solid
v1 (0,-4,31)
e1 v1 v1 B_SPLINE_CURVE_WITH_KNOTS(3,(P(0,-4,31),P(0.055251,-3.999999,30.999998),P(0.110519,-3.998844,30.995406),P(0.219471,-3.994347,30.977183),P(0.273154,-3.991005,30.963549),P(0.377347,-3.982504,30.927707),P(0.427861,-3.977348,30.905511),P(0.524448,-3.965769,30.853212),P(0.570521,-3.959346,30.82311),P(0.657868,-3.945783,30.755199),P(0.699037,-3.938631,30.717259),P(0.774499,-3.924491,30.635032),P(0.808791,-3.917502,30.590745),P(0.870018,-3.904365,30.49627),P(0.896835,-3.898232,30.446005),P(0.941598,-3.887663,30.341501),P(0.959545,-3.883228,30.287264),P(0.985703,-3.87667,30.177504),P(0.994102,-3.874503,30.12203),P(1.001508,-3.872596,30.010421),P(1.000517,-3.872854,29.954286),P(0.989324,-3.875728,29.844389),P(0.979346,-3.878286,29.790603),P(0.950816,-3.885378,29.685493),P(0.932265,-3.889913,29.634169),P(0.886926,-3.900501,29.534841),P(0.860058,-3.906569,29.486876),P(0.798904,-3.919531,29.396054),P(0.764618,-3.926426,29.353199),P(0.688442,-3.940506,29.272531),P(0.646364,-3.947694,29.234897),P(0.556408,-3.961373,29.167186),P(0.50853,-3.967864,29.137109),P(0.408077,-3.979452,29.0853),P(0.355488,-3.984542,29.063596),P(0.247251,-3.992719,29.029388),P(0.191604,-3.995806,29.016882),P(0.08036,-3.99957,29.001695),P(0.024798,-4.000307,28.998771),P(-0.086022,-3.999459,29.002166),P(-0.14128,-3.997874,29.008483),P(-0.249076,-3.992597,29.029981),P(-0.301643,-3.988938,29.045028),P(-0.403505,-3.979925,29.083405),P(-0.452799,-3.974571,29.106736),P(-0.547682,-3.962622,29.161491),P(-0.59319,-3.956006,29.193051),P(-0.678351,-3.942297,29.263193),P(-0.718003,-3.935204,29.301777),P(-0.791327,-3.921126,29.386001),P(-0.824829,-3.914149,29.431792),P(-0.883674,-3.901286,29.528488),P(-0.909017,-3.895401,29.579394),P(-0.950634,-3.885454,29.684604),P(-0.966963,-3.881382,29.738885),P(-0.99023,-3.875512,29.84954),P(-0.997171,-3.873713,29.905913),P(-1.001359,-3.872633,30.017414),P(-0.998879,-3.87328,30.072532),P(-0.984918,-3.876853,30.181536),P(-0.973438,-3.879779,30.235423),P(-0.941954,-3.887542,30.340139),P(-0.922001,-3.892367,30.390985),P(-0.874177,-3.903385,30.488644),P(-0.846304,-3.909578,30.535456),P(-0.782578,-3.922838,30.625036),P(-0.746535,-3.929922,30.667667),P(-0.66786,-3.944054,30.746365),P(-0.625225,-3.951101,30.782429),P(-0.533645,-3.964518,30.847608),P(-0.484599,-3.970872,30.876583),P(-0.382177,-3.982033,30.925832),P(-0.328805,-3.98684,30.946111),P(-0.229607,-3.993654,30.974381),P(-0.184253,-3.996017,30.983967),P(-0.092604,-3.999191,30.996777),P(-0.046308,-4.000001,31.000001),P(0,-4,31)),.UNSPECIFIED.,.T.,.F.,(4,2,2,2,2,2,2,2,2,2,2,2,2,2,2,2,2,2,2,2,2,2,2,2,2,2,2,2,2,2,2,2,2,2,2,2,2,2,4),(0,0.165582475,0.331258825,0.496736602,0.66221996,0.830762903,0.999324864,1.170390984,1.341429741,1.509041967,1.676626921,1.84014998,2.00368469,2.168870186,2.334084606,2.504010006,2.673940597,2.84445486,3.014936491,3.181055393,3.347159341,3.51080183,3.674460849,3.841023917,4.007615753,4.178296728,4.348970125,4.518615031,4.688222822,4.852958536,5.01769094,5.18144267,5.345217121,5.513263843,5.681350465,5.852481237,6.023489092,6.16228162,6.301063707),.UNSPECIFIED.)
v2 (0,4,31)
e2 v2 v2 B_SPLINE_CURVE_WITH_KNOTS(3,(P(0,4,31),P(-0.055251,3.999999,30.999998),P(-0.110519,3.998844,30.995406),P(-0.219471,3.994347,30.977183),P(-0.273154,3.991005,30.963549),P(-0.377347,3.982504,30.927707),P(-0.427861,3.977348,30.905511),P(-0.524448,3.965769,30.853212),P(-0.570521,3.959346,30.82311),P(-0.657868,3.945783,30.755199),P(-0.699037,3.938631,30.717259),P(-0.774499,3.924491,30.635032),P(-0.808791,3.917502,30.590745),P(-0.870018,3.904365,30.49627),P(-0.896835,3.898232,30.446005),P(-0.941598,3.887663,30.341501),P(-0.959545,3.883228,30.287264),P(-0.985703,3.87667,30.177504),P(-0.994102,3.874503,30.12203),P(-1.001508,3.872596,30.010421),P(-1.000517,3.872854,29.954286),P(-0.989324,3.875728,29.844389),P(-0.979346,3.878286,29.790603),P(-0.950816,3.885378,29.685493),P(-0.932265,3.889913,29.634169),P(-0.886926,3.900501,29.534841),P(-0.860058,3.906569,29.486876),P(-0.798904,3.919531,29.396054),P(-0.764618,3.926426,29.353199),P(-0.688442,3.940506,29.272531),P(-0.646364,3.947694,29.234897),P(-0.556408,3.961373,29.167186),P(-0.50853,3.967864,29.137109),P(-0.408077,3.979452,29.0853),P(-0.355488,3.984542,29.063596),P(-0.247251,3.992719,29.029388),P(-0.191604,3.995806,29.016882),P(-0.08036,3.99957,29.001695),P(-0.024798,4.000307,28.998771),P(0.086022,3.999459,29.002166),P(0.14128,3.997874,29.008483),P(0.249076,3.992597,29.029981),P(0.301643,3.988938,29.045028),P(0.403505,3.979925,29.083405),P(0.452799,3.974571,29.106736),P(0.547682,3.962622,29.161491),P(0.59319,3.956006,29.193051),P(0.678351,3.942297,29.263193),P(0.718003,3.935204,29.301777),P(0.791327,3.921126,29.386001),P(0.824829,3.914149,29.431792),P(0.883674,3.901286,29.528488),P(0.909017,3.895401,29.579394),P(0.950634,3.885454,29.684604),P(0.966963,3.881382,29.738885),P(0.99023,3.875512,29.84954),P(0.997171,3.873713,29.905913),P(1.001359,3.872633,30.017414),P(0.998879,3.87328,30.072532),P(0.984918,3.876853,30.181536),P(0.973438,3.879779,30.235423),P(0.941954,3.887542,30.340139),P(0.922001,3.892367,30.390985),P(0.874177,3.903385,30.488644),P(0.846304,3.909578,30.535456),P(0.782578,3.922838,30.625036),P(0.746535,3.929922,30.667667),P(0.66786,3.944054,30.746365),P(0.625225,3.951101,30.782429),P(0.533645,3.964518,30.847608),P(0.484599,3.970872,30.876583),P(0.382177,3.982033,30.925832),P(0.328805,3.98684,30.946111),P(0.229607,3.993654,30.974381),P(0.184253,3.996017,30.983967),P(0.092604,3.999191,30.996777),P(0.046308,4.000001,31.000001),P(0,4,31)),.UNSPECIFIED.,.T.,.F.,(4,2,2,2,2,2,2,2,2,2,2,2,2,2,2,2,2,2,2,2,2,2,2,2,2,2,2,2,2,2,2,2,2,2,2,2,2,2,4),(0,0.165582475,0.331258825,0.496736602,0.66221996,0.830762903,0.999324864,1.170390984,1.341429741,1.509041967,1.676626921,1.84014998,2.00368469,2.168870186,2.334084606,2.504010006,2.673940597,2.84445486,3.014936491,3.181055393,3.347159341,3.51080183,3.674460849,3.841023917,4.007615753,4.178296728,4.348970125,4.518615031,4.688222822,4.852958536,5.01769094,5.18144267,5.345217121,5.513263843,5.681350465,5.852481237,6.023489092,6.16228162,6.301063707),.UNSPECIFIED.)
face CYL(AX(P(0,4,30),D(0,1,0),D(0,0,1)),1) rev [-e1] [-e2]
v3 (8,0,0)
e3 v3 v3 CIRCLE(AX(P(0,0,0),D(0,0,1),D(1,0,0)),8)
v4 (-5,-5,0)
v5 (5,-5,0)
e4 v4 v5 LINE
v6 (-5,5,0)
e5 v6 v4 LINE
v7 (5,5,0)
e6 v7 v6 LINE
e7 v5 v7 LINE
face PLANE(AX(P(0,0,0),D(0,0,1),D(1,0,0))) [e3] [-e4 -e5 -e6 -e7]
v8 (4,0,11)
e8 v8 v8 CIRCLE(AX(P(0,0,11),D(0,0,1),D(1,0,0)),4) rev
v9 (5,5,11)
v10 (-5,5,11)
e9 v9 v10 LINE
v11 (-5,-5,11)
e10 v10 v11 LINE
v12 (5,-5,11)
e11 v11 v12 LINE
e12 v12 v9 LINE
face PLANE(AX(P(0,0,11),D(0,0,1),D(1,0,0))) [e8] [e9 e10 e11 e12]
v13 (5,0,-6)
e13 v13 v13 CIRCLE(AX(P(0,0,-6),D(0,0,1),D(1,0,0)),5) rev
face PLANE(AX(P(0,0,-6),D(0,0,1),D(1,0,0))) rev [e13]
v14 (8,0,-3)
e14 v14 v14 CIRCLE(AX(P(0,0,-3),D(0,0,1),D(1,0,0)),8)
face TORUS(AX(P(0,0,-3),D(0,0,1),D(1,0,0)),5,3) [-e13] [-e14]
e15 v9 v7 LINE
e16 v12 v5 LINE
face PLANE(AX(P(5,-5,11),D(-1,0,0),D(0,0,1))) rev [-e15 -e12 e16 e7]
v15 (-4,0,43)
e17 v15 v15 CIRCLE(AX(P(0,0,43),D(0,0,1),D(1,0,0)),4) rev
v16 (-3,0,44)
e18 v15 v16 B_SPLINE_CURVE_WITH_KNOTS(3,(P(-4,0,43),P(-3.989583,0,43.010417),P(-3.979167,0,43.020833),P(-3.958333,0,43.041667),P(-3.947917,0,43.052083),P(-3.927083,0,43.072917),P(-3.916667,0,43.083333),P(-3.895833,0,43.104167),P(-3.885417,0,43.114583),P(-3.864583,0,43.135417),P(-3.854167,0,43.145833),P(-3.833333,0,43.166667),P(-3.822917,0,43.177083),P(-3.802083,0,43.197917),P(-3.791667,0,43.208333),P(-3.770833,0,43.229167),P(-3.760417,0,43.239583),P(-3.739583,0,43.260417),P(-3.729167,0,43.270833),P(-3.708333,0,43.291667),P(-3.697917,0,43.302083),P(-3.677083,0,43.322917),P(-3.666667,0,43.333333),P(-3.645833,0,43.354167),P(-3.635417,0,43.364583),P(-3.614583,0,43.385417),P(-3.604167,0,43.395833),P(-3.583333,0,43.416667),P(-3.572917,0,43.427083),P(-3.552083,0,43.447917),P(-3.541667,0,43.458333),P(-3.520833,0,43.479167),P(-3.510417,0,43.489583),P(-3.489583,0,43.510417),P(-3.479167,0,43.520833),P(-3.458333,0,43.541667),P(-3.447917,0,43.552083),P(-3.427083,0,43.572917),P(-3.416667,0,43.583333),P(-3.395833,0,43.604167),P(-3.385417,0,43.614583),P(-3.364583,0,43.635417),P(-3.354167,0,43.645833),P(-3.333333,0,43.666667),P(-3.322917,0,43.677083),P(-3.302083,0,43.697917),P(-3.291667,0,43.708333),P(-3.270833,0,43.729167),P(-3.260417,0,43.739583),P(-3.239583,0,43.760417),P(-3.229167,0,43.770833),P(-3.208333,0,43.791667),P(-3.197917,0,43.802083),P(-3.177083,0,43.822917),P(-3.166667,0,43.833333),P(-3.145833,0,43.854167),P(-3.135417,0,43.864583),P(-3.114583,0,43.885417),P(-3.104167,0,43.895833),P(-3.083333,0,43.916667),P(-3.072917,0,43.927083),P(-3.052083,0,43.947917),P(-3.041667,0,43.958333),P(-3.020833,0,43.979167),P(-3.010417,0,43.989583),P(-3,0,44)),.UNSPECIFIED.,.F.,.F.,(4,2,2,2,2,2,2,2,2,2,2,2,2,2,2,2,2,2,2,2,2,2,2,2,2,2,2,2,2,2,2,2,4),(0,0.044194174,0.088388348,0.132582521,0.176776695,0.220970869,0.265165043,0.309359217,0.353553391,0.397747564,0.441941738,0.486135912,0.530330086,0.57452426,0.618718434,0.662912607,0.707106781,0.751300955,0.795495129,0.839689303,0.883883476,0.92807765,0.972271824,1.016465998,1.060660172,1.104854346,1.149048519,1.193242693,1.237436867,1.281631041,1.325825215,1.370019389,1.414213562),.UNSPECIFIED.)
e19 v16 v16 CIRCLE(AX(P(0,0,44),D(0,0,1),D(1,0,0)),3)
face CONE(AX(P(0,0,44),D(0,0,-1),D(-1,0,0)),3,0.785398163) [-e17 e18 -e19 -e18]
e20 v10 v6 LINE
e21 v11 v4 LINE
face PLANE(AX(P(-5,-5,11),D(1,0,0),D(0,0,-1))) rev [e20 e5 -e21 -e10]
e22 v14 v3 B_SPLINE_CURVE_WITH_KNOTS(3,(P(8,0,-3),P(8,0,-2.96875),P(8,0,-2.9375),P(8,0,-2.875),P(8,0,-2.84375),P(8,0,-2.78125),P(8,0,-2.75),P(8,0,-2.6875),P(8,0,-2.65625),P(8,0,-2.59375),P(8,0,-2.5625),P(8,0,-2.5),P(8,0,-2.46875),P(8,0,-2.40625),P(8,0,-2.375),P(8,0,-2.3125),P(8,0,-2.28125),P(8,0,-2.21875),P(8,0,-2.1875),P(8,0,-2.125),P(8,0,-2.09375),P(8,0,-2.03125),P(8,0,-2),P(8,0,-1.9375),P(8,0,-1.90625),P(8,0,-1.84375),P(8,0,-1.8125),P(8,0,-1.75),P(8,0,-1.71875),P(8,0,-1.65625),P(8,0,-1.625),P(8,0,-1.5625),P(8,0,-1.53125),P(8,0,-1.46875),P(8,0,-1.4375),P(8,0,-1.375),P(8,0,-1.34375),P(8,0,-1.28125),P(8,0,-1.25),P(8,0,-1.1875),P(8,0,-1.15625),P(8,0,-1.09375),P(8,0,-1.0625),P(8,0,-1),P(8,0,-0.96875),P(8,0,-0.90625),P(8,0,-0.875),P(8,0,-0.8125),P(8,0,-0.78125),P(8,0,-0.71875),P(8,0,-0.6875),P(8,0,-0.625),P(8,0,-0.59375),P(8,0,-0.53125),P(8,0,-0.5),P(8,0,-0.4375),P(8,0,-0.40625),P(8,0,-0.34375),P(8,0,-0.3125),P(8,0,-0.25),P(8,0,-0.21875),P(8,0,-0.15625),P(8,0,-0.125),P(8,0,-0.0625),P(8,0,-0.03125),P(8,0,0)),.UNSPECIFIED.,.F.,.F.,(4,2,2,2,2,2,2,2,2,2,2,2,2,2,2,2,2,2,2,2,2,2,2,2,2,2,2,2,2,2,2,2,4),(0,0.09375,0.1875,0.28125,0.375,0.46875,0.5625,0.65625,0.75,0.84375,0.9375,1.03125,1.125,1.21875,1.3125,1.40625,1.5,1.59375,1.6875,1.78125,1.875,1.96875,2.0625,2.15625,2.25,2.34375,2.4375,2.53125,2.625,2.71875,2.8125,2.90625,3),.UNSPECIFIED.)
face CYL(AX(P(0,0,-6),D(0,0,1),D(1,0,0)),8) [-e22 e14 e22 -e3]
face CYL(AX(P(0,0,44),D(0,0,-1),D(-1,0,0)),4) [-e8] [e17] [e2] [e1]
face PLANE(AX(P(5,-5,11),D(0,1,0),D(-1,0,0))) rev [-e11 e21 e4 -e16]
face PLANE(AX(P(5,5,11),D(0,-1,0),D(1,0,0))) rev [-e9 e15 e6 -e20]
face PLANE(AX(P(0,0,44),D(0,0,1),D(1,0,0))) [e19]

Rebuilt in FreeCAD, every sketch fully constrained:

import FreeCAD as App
import Part
import Sketcher
from FreeCAD import Vector
Q = App.Units.Quantity


def edges_at(feature, points):
    """Names of the edges that pass closest to the given points."""
    edges = feature.Shape.Edges
    near = lambda p: min(range(len(edges)), key=lambda i: edges[i].distToShape(Part.Vertex(*p))[0])
    return sorted({f"Edge{near(p) + 1}" for p in points})


def add_polygon(sketch, points):
    """Adds a closed chain of lines whose ends are joined by coincident constraints."""
    first, n = sketch.GeometryCount, len(points)
    for a, b in zip(points, points[1:] + points[:1]):
        sketch.addGeometry(Part.LineSegment(App.Vector(*a, 0), App.Vector(*b, 0)), False)
    for i in range(n):
        sketch.addConstraint(Sketcher.Constraint("Coincident", first + i, 2, first + (i + 1) % n, 1))

doc = App.newDocument("Part")
body = doc.addObject("PartDesign::Body", "Body")

# Sketch on XY plane
sketch1 = body.newObject("Sketcher::SketchObject", "Sketch")
sketch1.AttachmentSupport = (doc.getObject("XY_Plane"), [""])
sketch1.MapMode = "FlatFace"
sketch1.addGeometry(Part.Circle(Vector(0, 0, 0), Vector(0, 0, 1), 8), False)
sketch1.addConstraint([
    Sketcher.Constraint("Coincident", 0, 3, -1, 1),
    Sketcher.Constraint("Diameter", 0, Q("16 mm")),
])
pad1 = body.newObject("PartDesign::Pad", "Pad")
pad1.Profile = sketch1
pad1.Length = 6
pad1.Reversed = True

# Sketch on XY plane
sketch2 = body.newObject("Sketcher::SketchObject", "Sketch001")
sketch2.AttachmentSupport = (doc.getObject("XY_Plane"), [""])
sketch2.MapMode = "FlatFace"
add_polygon(sketch2, [(-5, 5), (-5, -5), (5, -5), (5, 5)])  # lines 0-3
sketch2.addConstraint([
    Sketcher.Constraint("Vertical", 0),
    Sketcher.Constraint("Horizontal", 1),
    Sketcher.Constraint("Vertical", 2),
    Sketcher.Constraint("Horizontal", 3),
    Sketcher.Constraint("Symmetric", 0, 2, 2, 2, -1, 1),
    Sketcher.Constraint("Equal", 3, 0),
    Sketcher.Constraint("DistanceX", 1, 1, 1, 2, Q("10 mm")),
])
pad2 = body.newObject("PartDesign::Pad", "Pad001")
pad2.Profile = sketch2
pad2.Length = 11

# Sketch on XY plane
sketch3 = body.newObject("Sketcher::SketchObject", "Sketch002")
sketch3.AttachmentSupport = (doc.getObject("XY_Plane"), [""])
sketch3.MapMode = "FlatFace"
sketch3.addGeometry(Part.Circle(Vector(0, 0, 0), Vector(0, 0, 1), 4), False)
sketch3.addConstraint([
    Sketcher.Constraint("Coincident", 0, 3, -1, 1),
    Sketcher.Constraint("Diameter", 0, Q("8 mm")),
])
pad3 = body.newObject("PartDesign::Pad", "Pad002")
pad3.Profile = sketch3
pad3.Length = 44

# Sketch on XZ plane
sketch4 = body.newObject("Sketcher::SketchObject", "Sketch003")
sketch4.AttachmentSupport = (doc.getObject("XZ_Plane"), [""])
sketch4.MapMode = "FlatFace"
sketch4.AttachmentOffset = App.Placement(Vector(0, 0, -4), App.Rotation())
sketch4.addGeometry(Part.Circle(Vector(0, 30, 0), Vector(0, 0, 1), 1), False)
sketch4.addConstraint([
    Sketcher.Constraint("PointOnObject", 0, 3, -2),
    Sketcher.Constraint("Diameter", 0, Q("2 mm")),
    Sketcher.Constraint("DistanceY", -1, 1, 0, 3, Q("30 mm")),
])
doc.recompute()
hole = body.newObject("PartDesign::Hole", "Hole")
hole.Profile = sketch4
hole.ThreadType = "None"
hole.Diameter = 2
hole.DepthType = "ThroughAll"
hole.Reversed = True
doc.recompute()

fillet = body.newObject("PartDesign::Fillet", "Fillet")
fillet.Base = (hole, edges_at(hole, [(-8, 0, -6)]))
fillet.Radius = 3
doc.recompute()

chamfer = body.newObject("PartDesign::Chamfer", "Chamfer")
chamfer.Base = (fillet, edges_at(fillet, [(-4, 0, 44)]))
chamfer.Size = 1

doc.recompute()
